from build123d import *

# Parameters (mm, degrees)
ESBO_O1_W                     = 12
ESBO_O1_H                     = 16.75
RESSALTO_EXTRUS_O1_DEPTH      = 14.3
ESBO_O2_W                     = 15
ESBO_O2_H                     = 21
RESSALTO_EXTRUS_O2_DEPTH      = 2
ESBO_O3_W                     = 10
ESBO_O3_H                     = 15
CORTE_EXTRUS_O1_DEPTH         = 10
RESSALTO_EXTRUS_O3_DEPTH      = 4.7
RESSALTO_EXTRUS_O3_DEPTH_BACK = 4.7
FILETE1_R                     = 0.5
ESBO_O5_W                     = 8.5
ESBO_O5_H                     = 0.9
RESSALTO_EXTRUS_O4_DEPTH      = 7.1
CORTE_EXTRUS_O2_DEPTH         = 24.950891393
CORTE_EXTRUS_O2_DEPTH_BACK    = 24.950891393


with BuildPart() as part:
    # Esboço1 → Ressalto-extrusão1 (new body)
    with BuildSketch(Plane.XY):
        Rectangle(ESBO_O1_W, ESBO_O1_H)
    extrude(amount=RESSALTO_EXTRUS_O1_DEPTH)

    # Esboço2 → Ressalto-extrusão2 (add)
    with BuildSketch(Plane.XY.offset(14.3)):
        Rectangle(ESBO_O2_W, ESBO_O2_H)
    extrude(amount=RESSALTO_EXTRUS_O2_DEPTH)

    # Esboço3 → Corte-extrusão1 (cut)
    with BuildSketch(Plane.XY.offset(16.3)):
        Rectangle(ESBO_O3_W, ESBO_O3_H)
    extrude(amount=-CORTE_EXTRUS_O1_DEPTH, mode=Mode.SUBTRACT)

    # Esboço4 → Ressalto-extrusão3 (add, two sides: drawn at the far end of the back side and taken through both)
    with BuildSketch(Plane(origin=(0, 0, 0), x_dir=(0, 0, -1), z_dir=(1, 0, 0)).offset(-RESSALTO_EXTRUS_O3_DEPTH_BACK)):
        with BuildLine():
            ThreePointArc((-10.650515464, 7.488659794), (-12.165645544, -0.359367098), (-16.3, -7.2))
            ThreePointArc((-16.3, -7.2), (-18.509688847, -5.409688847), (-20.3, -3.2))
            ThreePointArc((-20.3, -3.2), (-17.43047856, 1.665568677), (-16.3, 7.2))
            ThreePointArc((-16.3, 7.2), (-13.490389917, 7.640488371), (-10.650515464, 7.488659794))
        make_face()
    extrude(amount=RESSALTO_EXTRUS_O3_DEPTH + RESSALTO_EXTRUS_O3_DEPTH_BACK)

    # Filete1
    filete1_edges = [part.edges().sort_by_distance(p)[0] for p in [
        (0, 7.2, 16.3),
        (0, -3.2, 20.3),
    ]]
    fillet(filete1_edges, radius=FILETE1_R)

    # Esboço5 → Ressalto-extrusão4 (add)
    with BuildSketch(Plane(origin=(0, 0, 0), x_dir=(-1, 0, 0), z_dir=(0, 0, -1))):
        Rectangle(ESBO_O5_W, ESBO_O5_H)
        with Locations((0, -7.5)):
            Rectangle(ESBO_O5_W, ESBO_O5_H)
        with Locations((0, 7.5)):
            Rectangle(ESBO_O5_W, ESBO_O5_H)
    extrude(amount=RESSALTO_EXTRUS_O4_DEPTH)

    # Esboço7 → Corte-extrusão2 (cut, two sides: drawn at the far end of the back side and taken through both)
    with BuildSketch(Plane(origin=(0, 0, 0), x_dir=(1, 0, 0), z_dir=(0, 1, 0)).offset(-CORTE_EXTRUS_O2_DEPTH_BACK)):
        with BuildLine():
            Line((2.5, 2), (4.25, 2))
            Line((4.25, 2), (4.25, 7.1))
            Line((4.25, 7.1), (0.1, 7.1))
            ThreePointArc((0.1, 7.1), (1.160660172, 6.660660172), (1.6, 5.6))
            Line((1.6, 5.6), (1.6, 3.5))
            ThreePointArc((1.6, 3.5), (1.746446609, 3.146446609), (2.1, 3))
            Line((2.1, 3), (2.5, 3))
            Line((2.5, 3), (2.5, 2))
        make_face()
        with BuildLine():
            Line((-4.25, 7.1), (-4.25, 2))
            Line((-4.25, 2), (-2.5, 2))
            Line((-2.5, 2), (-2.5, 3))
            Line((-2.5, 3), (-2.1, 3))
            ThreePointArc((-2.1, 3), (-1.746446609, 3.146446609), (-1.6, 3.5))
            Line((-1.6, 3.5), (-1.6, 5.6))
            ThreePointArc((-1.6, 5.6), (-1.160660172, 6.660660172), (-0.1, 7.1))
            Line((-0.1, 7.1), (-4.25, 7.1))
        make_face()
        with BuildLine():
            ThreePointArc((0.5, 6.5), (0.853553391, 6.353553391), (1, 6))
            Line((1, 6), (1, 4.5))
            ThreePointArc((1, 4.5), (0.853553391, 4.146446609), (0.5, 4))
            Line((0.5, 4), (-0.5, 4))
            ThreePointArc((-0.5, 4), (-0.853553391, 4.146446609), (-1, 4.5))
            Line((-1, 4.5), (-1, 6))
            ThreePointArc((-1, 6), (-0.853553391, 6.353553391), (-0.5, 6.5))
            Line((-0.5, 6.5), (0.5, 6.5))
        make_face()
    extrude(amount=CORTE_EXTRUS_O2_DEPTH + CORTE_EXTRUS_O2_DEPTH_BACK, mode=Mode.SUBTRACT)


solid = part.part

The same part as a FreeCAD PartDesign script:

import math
import FreeCAD as App
import Part
import Sketcher
Q = App.Units.Quantity


def edges_at(feature, points):
    """Names of the edges that pass closest to the given points."""
    edges = feature.Shape.Edges
    near = lambda p: min(range(len(edges)), key=lambda i: edges[i].distToShape(Part.Vertex(*p))[0])
    return sorted({f"Edge{near(p) + 1}" for p in points})

doc = App.newDocument("Part")
body = doc.addObject("PartDesign::Body", "Body")

# Sketch on XY plane
sketch1 = body.newObject("Sketcher::SketchObject", "Sketch")
sketch1.AttachmentSupport = (doc.getObject("XY_Plane"), [""])
sketch1.MapMode = "FlatFace"
sketch1.addGeometry([
    Part.LineSegment(App.Vector(-6, 8, 0), App.Vector(-6, -8, 0)),
    Part.LineSegment(App.Vector(-6, -8, 0), App.Vector(6, -8, 0)),
    Part.LineSegment(App.Vector(6, -8, 0), App.Vector(6, 8, 0)),
    Part.LineSegment(App.Vector(6, 8, 0), App.Vector(-6, 8, 0)),
], False)
sketch1.addConstraint([
    Sketcher.Constraint("Coincident", 0, 2, 1, 1),
    Sketcher.Constraint("Coincident", 1, 2, 2, 1),
    Sketcher.Constraint("Coincident", 2, 2, 3, 1),
    Sketcher.Constraint("Coincident", 3, 2, 0, 1),
    Sketcher.Constraint("Vertical", 0),
    Sketcher.Constraint("Horizontal", 1),
    Sketcher.Constraint("Vertical", 2),
    Sketcher.Constraint("Horizontal", 3),
    Sketcher.Constraint("Symmetric", 0, 2, 2, 2, -1, 1),
    Sketcher.Constraint("DistanceX", 1, 1, 1, 2, Q("12 mm")),
    Sketcher.Constraint("DistanceY", 0, 2, 0, 1, Q("16.75 mm")),
])
pad1 = body.newObject("PartDesign::Pad", "Pad")
pad1.Profile = sketch1
pad1.Length = 14.3

# Sketch on XY plane
sketch2 = body.newObject("Sketcher::SketchObject", "Sketch001")
sketch2.AttachmentSupport = (doc.getObject("XY_Plane"), [""])
sketch2.MapMode = "FlatFace"
sketch2.AttachmentOffset = App.Placement(App.Vector(0, 0, 14.3), App.Rotation())
sketch2.addGeometry([
    Part.LineSegment(App.Vector(-8, 10, 0), App.Vector(-8, -10, 0)),
    Part.LineSegment(App.Vector(-8, -10, 0), App.Vector(8, -10, 0)),
    Part.LineSegment(App.Vector(8, -10, 0), App.Vector(8, 10, 0)),
    Part.LineSegment(App.Vector(8, 10, 0), App.Vector(-8, 10, 0)),
], False)
sketch2.addConstraint([
    Sketcher.Constraint("Coincident", 0, 2, 1, 1),
    Sketcher.Constraint("Coincident", 1, 2, 2, 1),
    Sketcher.Constraint("Coincident", 2, 2, 3, 1),
    Sketcher.Constraint("Coincident", 3, 2, 0, 1),
    Sketcher.Constraint("Vertical", 0),
    Sketcher.Constraint("Horizontal", 1),
    Sketcher.Constraint("Vertical", 2),
    Sketcher.Constraint("Horizontal", 3),
    Sketcher.Constraint("Symmetric", 0, 2, 2, 2, -1, 1),
    Sketcher.Constraint("DistanceX", 1, 1, 1, 2, Q("15 mm")),
    Sketcher.Constraint("DistanceY", 0, 2, 0, 1, Q("21 mm")),
])
pad2 = body.newObject("PartDesign::Pad", "Pad001")
pad2.Profile = sketch2
pad2.Length = 2

# Sketch on XY plane
sketch3 = body.newObject("Sketcher::SketchObject", "Sketch002")
sketch3.AttachmentSupport = (doc.getObject("XY_Plane"), [""])
sketch3.MapMode = "FlatFace"
sketch3.AttachmentOffset = App.Placement(App.Vector(0, 0, 16.3), App.Rotation())
sketch3.addGeometry([
    Part.LineSegment(App.Vector(-5, 8, 0), App.Vector(-5, -8, 0)),
    Part.LineSegment(App.Vector(-5, -8, 0), App.Vector(5, -8, 0)),
    Part.LineSegment(App.Vector(5, -8, 0), App.Vector(5, 8, 0)),
    Part.LineSegment(App.Vector(5, 8, 0), App.Vector(-5, 8, 0)),
], False)
sketch3.addConstraint([
    Sketcher.Constraint("Coincident", 0, 2, 1, 1),
    Sketcher.Constraint("Coincident", 1, 2, 2, 1),
    Sketcher.Constraint("Coincident", 2, 2, 3, 1),
    Sketcher.Constraint("Coincident", 3, 2, 0, 1),
    Sketcher.Constraint("Vertical", 0),
    Sketcher.Constraint("Horizontal", 1),
    Sketcher.Constraint("Vertical", 2),
    Sketcher.Constraint("Horizontal", 3),
    Sketcher.Constraint("Symmetric", 0, 2, 2, 2, -1, 1),
    Sketcher.Constraint("DistanceX", 1, 1, 1, 2, Q("10 mm")),
    Sketcher.Constraint("DistanceY", 0, 2, 0, 1, Q("15 mm")),
])
pocket1 = body.newObject("PartDesign::Pocket", "Pocket")
pocket1.Profile = sketch3
pocket1.Length = 10

# Sketch on YZ plane
sketch4 = body.newObject("Sketcher::SketchObject", "Sketch003")
sketch4.AttachmentSupport = (doc.getObject("YZ_Plane"), [""])
sketch4.MapMode = "FlatFace"
sketch4.addGeometry([
    Part.ArcOfCircle(Part.Circle(App.Vector(8, 33, 0), App.Vector(0, 0, 1), 23), math.radians(-131), math.radians(-91)),
    Part.ArcOfCircle(Part.Circle(App.Vector(-6, 13, 0), App.Vector(0, 0, 1), 14), math.radians(-9), math.radians(15)),
    Part.ArcOfCircle(Part.Circle(App.Vector(8, 33, 0), App.Vector(0, 0, 1), 17), math.radians(-130), math.radians(-92)),
    Part.ArcOfCircle(Part.Circle(App.Vector(4, 9, 0), App.Vector(0, 0, 1), 14), math.radians(123), math.radians(147)),
], False)
sketch4.addConstraint([
    Sketcher.Constraint("Coincident", 0, 2, 1, 1),
    Sketcher.Constraint("Coincident", 1, 2, 2, 2),
    Sketcher.Constraint("Coincident", 2, 1, 3, 1),
    Sketcher.Constraint("Coincident", 3, 2, 0, 1),
    Sketcher.Constraint("Coincident", 2, 3, 0, 3),
    Sketcher.Constraint("Equal", 1, 3),
    Sketcher.Constraint("Symmetric", 1, 2, 3, 2, -2),
    Sketcher.Constraint("Radius", 2, Q("17.125 mm")),
    Sketcher.Constraint("DistanceY", 1, 2, 2, 1, Q("4 mm")),
    Sketcher.Constraint("DistanceX", 3, 2, 2, 1, Q("4 mm")),
    Sketcher.Constraint("DistanceX", -1, 1, 1, 2, Q("7.2 mm")),
    Sketcher.Constraint("DistanceY", -1, 1, 1, 2, Q("16.3 mm")),
    Sketcher.Constraint("Radius", 1, Q("13.636959 mm")),
    Sketcher.Constraint("DistanceX", 1, 3, 3, 3, Q("10.211802 mm")),
])
pad3 = body.newObject("PartDesign::Pad", "Pad002")
pad3.Profile = sketch4
pad3.Type = "TwoLengths"
pad3.Length = 4.7
pad3.Length2 = 4.7
doc.recompute()

fillet = body.newObject("PartDesign::Fillet", "Fillet")
fillet.Base = (pad3, edges_at(pad3, [(0, 7.2, 16.3), (0, -3.2, 20.3)]))
fillet.Radius = 0.5

# Sketch on XY plane
sketch5 = body.newObject("Sketcher::SketchObject", "Sketch004")
sketch5.AttachmentSupport = (doc.getObject("XY_Plane"), [""])
sketch5.MapMode = "FlatFace"
sketch5.addGeometry([
    Part.LineSegment(App.Vector(4.2, 0.5, 0), App.Vector(4.2, -0.5, 0)),  # 0
    Part.LineSegment(App.Vector(4.2, -0.5, 0), App.Vector(-4.2, -0.5, 0)),  # 1
    Part.LineSegment(App.Vector(-4.2, -0.5, 0), App.Vector(-4.2, 0.5, 0)),  # 2
    Part.LineSegment(App.Vector(-4.2, 0.5, 0), App.Vector(4.2, 0.5, 0)),  # 3
    Part.LineSegment(App.Vector(4.2, -7, 0), App.Vector(4.2, -8, 0)),  # 4
    Part.LineSegment(App.Vector(4.2, -8, 0), App.Vector(-4.2, -8, 0)),  # 5
    Part.LineSegment(App.Vector(-4.2, -8, 0), App.Vector(-4.2, -7, 0)),  # 6
    Part.LineSegment(App.Vector(-4.2, -7, 0), App.Vector(4.2, -7, 0)),  # 7
    Part.LineSegment(App.Vector(4.2, 8, 0), App.Vector(4.2, 7, 0)),  # 8
    Part.LineSegment(App.Vector(4.2, 7, 0), App.Vector(-4.2, 7, 0)),  # 9
    Part.LineSegment(App.Vector(-4.2, 7, 0), App.Vector(-4.2, 8, 0)),  # 10
    Part.LineSegment(App.Vector(-4.2, 8, 0), App.Vector(4.2, 8, 0)),  # 11
], False)
sketch5.addConstraint([
    Sketcher.Constraint("Coincident", 0, 2, 1, 1),
    Sketcher.Constraint("Coincident", 1, 2, 2, 1),
    Sketcher.Constraint("Coincident", 2, 2, 3, 1),
    Sketcher.Constraint("Coincident", 3, 2, 0, 1),
    Sketcher.Constraint("Coincident", 4, 2, 5, 1),
    Sketcher.Constraint("Coincident", 5, 2, 6, 1),
    Sketcher.Constraint("Coincident", 6, 2, 7, 1),
    Sketcher.Constraint("Coincident", 7, 2, 4, 1),
    Sketcher.Constraint("Coincident", 8, 2, 9, 1),
    Sketcher.Constraint("Coincident", 9, 2, 10, 1),
    Sketcher.Constraint("Coincident", 10, 2, 11, 1),
    Sketcher.Constraint("Coincident", 11, 2, 8, 1),
    Sketcher.Constraint("Vertical", 0),
    Sketcher.Constraint("Horizontal", 1),
    Sketcher.Constraint("Vertical", 2),
    Sketcher.Constraint("Horizontal", 3),
    Sketcher.Constraint("Vertical", 4),
    Sketcher.Constraint("Horizontal", 5),
    Sketcher.Constraint("Vertical", 6),
    Sketcher.Constraint("Horizontal", 7),
    Sketcher.Constraint("Vertical", 8),
    Sketcher.Constraint("Horizontal", 9),
    Sketcher.Constraint("Vertical", 10),
    Sketcher.Constraint("Horizontal", 11),
    Sketcher.Constraint("Symmetric", 0, 2, 2, 2, -1, 1),
    Sketcher.Constraint("Symmetric", 6, 2, 8, 2, -1, 1),
    Sketcher.Constraint("Symmetric", 4, 2, 10, 2, -1, 1),
    Sketcher.Constraint("Vertical", 3, 2, 4, 2),
    Sketcher.Constraint("Vertical", 2, 2, 5, 2),
    Sketcher.Constraint("Equal", 2, 4),
    Sketcher.Constraint("DistanceX", 1, 2, 1, 1, Q("8.5 mm")),
    Sketcher.Constraint("DistanceY", 0, 2, 0, 1, Q("0.9 mm")),
    Sketcher.Constraint("DistanceY", 4, 2, 0, 2, Q("7.5 mm")),
])
pad4 = body.newObject("PartDesign::Pad", "Pad003")
pad4.Profile = sketch5
pad4.Length = 7.1
pad4.Reversed = True

# Sketch on XZ plane
sketch6 = body.newObject("Sketcher::SketchObject", "Sketch005")
sketch6.AttachmentSupport = (doc.getObject("XZ_Plane"), [""])
sketch6.MapMode = "FlatFace"
sketch6.addGeometry([
    Part.LineSegment(App.Vector(2.5, -2, 0), App.Vector(4.25, -2, 0)),  # 0
    Part.LineSegment(App.Vector(4.25, -2, 0), App.Vector(4.25, -7.1, 0)),  # 1
    Part.LineSegment(App.Vector(4.25, -7.1, 0), App.Vector(0.1, -7.1, 0)),  # 2
    Part.ArcOfCircle(Part.Circle(App.Vector(0.1, -5.6, 0), App.Vector(0, 0, 1), 1.5), math.radians(-90), math.radians(0)),  # 3
    Part.LineSegment(App.Vector(1.6, -5.6, 0), App.Vector(1.6, -3.5, 0)),  # 4
    Part.ArcOfCircle(Part.Circle(App.Vector(2.1, -3.5, 0), App.Vector(0, 0, 1), 0.5), math.radians(90), math.radians(180)),  # 5
    Part.LineSegment(App.Vector(2.1, -3, 0), App.Vector(2.5, -3, 0)),  # 6
    Part.LineSegment(App.Vector(2.5, -3, 0), App.Vector(2.5, -2, 0)),  # 7
    Part.LineSegment(App.Vector(-4.25, -7.1, 0), App.Vector(-4.25, -2, 0)),  # 8
    Part.LineSegment(App.Vector(-4.25, -2, 0), App.Vector(-2.5, -2, 0)),  # 9
    Part.LineSegment(App.Vector(-2.5, -2, 0), App.Vector(-2.5, -3, 0)),  # 10
    Part.LineSegment(App.Vector(-2.5, -3, 0), App.Vector(-2.1, -3, 0)),  # 11
    Part.ArcOfCircle(Part.Circle(App.Vector(-2.1, -3.5, 0), App.Vector(0, 0, 1), 0.5), math.radians(0), math.radians(90)),  # 12
    Part.LineSegment(App.Vector(-1.6, -3.5, 0), App.Vector(-1.6, -5.6, 0)),  # 13
    Part.ArcOfCircle(Part.Circle(App.Vector(-0.1, -5.6, 0), App.Vector(0, 0, 1), 1.5), math.radians(180), math.radians(270)),  # 14
    Part.LineSegment(App.Vector(-0.1, -7.1, 0), App.Vector(-4.25, -7.1, 0)),  # 15
    Part.ArcOfCircle(Part.Circle(App.Vector(0.5, -6, 0), App.Vector(0, 0, 1), 0.5), math.radians(-90), math.radians(0)),  # 16
    Part.LineSegment(App.Vector(0.5, -6.5, 0), App.Vector(-0.5, -6.5, 0)),  # 17
    Part.ArcOfCircle(Part.Circle(App.Vector(-0.5, -6, 0), App.Vector(0, 0, 1), 0.5), math.radians(180), math.radians(270)),  # 18
    Part.LineSegment(App.Vector(-1, -6, 0), App.Vector(-1, -4.5, 0)),  # 19
    Part.ArcOfCircle(Part.Circle(App.Vector(-0.5, -4.5, 0), App.Vector(0, 0, 1), 0.5), math.radians(90), math.radians(180)),  # 20
    Part.LineSegment(App.Vector(-0.5, -4, 0), App.Vector(0.5, -4, 0)),  # 21
    Part.ArcOfCircle(Part.Circle(App.Vector(0.5, -4.5, 0), App.Vector(0, 0, 1), 0.5), math.radians(0), math.radians(90)),  # 22
    Part.LineSegment(App.Vector(1, -4.5, 0), App.Vector(1, -6, 0)),  # 23
], False)
sketch6.addConstraint([
    Sketcher.Constraint("Coincident", 0, 2, 1, 1),
    Sketcher.Constraint("Coincident", 1, 2, 2, 1),
    Sketcher.Constraint("Tangent", 2, 2, 3, 1),
    Sketcher.Constraint("Tangent", 3, 2, 4, 1),
    Sketcher.Constraint("Tangent", 4, 2, 5, 2),
    Sketcher.Constraint("Tangent", 5, 1, 6, 1),
    Sketcher.Constraint("Coincident", 6, 2, 7, 1),
    Sketcher.Constraint("Coincident", 7, 2, 0, 1),
    Sketcher.Constraint("Coincident", 8, 2, 9, 1),
    Sketcher.Constraint("Coincident", 9, 2, 10, 1),
    Sketcher.Constraint("Coincident", 10, 2, 11, 1),
    Sketcher.Constraint("Tangent", 11, 2, 12, 2),
    Sketcher.Constraint("Tangent", 12, 1, 13, 1),
    Sketcher.Constraint("Tangent", 13, 2, 14, 1),
    Sketcher.Constraint("Tangent", 14, 2, 15, 1),
    Sketcher.Constraint("Coincident", 15, 2, 8, 1),
    Sketcher.Constraint("Tangent", 16, 1, 17, 1),
    Sketcher.Constraint("Tangent", 17, 2, 18, 2),
    Sketcher.Constraint("Tangent", 18, 1, 19, 1),
    Sketcher.Constraint("Tangent", 19, 2, 20, 2),
    Sketcher.Constraint("Tangent", 20, 1, 21, 1),
    Sketcher.Constraint("Tangent", 21, 2, 22, 2),
    Sketcher.Constraint("Tangent", 22, 1, 23, 1),
    Sketcher.Constraint("Tangent", 23, 2, 16, 2),
    Sketcher.Constraint("Horizontal", 0),
    Sketcher.Constraint("Vertical", 1),
    Sketcher.Constraint("Horizontal", 2),
    Sketcher.Constraint("Vertical", 4),
    Sketcher.Constraint("Horizontal", 6),
    Sketcher.Constraint("Vertical", 7),
    Sketcher.Constraint("Vertical", 8),
    Sketcher.Constraint("Horizontal", 9),
    Sketcher.Constraint("Vertical", 10),
    Sketcher.Constraint("Horizontal", 11),
    Sketcher.Constraint("Vertical", 13),
    Sketcher.Constraint("Horizontal", 15),
    Sketcher.Constraint("Horizontal", 17),
    Sketcher.Constraint("Vertical", 19),
    Sketcher.Constraint("Horizontal", 21),
    Sketcher.Constraint("Vertical", 23),
    Sketcher.Constraint("Equal", 5, 12),
    Sketcher.Constraint("Equal", 3, 14),
    Sketcher.Constraint("Equal", 12, 16),
    Sketcher.Constraint("Equal", 16, 18),
    Sketcher.Constraint("Equal", 18, 20),
    Sketcher.Constraint("Equal", 20, 22),
    Sketcher.Constraint("Symmetric", 5, 3, 12, 3, -2),
    Sketcher.Constraint("Symmetric", 0, 2, 8, 2, -2),
    Sketcher.Constraint("Horizontal", 3, 3, 14, 3),
    Sketcher.Constraint("Equal", 0, 9),
    Sketcher.Constraint("Equal", 21, 7),
    Sketcher.Constraint("Radius", 3, Q("1.5 mm")),
    Sketcher.Constraint("Radius", 5, Q("0.5 mm")),
    Sketcher.Constraint("DistanceX", 17, 2, 17, 1, Q("1 mm")),
    Sketcher.Constraint("DistanceX", 6, 1, 6, 2, Q("0.4 mm")),
    Sketcher.Constraint("DistanceY", 1, 2, 1, 1, Q("5.1 mm")),
    Sketcher.Constraint("DistanceY", 19, 1, 19, 2, Q("1.5 mm")),
    Sketcher.Constraint("DistanceY", 16, 3, -1, 1, Q("6 mm")),
    Sketcher.Constraint("DistanceY", 0, 2, -1, 1, Q("2 mm")),
    Sketcher.Constraint("DistanceX", 18, 1, -1, 1, Q("1 mm")),
    Sketcher.Constraint("DistanceX", 22, 3, 6, 2, Q("2 mm")),
    Sketcher.Constraint("DistanceX", 0, 1, 0, 2, Q("1.75 mm")),
])
pocket2 = body.newObject("PartDesign::Pocket", "Pocket001")
pocket2.Profile = sketch6
pocket2.Type = "ThroughAll"
pocket2.Midplane = True

doc.recompute()
